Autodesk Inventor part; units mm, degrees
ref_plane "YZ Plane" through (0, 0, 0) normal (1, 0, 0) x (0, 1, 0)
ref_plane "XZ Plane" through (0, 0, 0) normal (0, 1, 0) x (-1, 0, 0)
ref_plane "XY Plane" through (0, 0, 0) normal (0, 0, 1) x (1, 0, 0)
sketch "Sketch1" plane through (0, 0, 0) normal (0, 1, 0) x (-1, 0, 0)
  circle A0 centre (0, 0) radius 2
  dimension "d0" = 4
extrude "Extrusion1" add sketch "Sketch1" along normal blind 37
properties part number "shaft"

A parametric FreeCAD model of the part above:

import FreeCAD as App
import Part
import Sketcher
Q = App.Units.Quantity

doc = App.newDocument("Part")
params = doc.addObject("Spreadsheet::Sheet", "Params")
for row, (alias, value) in enumerate([
    ("sketch1_diameter", "4 mm"),
    ("pad1_length", "37 mm"),
], start=1):
    params.set(f"A{row}", alias)
    params.set(f"B{row}", "=" + value)
    params.setAlias(f"B{row}", alias)

body = doc.addObject("PartDesign::Body", "Body")

sketch1 = body.newObject("Sketcher::SketchObject", "Sketch")
sketch1.AttachmentSupport = (doc.getObject("XZ_Plane"), [""])
sketch1.MapMode = "FlatFace"
sketch1.addGeometry(Part.Circle(App.Vector(0, 0, 0), App.Vector(0, 0, 1), 2), False)
sketch1.addConstraint(Sketcher.Constraint("Coincident", 0, 3, -1, 1))
sketch1.addConstraint(Sketcher.Constraint("Diameter", 0, Q("4 mm")))
sketch1.setExpression("Constraints[1]", "Params.sketch1_diameter")
pad1 = body.newObject("PartDesign::Pad", "Pad")
pad1.Profile = sketch1
pad1.setExpression("Length", "Params.pad1_length")
pad1.Reversed = True

doc.recompute()
